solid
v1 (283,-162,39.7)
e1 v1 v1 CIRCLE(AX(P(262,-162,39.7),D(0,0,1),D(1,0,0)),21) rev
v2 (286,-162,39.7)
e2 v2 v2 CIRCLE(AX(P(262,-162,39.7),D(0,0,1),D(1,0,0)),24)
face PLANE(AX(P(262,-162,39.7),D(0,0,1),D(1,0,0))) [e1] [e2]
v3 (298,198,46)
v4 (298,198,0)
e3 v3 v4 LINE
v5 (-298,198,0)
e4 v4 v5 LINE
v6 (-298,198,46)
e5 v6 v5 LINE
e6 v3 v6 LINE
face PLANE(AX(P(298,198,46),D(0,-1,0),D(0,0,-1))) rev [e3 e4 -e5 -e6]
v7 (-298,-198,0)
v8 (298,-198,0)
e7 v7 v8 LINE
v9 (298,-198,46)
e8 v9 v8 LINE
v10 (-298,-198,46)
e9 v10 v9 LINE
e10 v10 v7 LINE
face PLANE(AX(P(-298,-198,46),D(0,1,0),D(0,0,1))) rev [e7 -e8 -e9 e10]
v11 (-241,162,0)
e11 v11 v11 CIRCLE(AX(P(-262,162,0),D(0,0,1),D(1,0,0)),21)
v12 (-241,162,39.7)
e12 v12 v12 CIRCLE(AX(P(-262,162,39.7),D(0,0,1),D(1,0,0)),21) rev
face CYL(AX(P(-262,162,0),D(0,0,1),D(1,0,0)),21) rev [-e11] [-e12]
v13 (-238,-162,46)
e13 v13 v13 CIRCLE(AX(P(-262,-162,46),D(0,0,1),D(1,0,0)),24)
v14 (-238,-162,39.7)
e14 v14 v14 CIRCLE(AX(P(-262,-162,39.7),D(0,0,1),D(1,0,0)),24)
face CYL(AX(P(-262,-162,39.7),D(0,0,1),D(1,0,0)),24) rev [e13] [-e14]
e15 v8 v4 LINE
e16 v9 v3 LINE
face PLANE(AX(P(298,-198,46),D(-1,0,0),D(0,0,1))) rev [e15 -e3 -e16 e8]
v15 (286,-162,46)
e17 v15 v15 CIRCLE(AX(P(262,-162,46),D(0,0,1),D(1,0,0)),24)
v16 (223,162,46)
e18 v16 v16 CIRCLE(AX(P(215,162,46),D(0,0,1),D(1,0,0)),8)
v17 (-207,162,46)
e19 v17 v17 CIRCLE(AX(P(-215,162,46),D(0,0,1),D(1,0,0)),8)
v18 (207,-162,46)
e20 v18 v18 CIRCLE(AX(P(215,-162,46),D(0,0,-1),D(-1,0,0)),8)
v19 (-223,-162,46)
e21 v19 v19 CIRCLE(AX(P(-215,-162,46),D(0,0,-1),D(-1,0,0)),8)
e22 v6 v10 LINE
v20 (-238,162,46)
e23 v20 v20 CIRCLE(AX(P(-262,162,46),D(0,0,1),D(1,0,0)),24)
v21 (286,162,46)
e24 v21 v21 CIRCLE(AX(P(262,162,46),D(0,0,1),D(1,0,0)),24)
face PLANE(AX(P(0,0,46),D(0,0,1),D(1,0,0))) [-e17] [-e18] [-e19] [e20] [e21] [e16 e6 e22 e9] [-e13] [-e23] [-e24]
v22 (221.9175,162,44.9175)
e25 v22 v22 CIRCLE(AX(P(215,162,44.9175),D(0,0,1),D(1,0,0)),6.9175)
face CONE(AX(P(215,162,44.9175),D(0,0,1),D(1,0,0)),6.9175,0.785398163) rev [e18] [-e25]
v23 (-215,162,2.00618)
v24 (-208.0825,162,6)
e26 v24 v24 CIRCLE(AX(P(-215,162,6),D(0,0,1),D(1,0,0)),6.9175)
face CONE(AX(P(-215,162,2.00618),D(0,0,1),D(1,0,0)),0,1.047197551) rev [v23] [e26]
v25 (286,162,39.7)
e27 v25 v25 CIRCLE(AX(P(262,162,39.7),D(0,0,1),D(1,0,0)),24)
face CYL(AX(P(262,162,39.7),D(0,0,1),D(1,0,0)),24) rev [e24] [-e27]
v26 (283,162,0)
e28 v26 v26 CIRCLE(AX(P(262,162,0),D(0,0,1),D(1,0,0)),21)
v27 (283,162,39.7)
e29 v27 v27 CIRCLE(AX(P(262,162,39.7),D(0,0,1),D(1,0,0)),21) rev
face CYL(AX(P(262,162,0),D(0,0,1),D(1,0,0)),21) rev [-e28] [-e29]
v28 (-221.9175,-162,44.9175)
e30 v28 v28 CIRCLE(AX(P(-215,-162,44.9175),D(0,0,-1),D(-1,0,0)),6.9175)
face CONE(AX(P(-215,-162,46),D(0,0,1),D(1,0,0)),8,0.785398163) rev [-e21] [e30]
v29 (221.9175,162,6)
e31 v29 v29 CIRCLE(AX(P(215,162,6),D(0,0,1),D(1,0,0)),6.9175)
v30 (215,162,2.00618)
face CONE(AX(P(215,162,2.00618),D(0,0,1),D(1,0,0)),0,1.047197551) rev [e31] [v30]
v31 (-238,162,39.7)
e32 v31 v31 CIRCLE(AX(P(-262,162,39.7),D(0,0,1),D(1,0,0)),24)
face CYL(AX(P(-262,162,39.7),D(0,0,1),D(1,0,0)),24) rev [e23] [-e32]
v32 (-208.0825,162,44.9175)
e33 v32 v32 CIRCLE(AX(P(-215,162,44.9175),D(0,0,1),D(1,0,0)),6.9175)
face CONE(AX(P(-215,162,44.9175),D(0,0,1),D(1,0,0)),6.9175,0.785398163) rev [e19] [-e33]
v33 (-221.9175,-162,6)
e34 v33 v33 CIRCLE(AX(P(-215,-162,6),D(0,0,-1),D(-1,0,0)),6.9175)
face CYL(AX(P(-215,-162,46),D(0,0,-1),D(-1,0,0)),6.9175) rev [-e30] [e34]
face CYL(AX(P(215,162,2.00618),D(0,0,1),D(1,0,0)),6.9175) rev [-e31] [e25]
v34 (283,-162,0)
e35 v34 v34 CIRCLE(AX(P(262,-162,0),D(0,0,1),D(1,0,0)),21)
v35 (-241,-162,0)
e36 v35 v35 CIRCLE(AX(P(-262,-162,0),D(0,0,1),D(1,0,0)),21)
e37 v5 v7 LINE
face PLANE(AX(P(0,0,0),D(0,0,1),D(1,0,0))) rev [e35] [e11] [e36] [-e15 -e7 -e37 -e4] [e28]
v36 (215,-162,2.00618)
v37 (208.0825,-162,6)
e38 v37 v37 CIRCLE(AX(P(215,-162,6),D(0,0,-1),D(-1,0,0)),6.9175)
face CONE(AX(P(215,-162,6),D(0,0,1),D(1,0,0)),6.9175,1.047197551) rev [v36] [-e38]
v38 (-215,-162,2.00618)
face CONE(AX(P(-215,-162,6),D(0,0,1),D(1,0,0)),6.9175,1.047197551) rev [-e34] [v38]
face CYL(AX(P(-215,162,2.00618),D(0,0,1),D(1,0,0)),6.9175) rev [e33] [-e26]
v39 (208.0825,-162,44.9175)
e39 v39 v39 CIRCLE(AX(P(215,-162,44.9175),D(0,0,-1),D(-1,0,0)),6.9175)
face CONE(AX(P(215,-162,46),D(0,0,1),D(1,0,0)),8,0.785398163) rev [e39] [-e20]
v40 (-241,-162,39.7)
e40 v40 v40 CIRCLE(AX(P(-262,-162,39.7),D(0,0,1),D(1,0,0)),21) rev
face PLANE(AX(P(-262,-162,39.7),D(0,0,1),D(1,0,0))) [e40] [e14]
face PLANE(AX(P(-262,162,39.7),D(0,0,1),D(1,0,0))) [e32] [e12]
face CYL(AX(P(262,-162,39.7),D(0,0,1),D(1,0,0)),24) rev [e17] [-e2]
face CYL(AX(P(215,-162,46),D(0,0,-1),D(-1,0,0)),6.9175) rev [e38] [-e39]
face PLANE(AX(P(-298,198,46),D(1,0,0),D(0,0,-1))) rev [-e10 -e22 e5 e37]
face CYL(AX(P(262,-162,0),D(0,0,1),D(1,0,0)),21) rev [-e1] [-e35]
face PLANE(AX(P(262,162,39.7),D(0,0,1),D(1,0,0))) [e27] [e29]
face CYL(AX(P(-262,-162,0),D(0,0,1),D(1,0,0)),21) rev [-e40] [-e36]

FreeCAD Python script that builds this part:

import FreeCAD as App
import Part
import Sketcher
from FreeCAD import Vector
Q = App.Units.Quantity

doc = App.newDocument("Part")
params = doc.addObject("Spreadsheet::Sheet", "Params")
for row, (alias, value) in enumerate([
    ("sketch1_width", "596 mm"),
    ("sketch1_height", "396 mm"),
    ("pad1_length", "46 mm"),
    ("sketch2_diameter", "42 mm"),
    ("pocket1_length", "46 mm"),
    ("sketch3_diameter", "42 mm"),
    ("pocket2_length", "46 mm"),
    ("sketch4_diameter", "42 mm"),
    ("pocket3_length", "46 mm"),
    ("sketch5_diameter", "42 mm"),
    ("pocket4_length", "46 mm"),
    ("sketch6_diameter", "48 mm"),
    ("pocket5_length", "6.3 mm"),
    ("sketch7_diameter", "48 mm"),
    ("pocket6_length", "6.3 mm"),
    ("sketch8_diameter", "48 mm"),
    ("pocket7_length", "6.3 mm"),
    ("sketch9_diameter", "48 mm"),
    ("pocket8_length", "6.3 mm"),
    ("sketch10_width", "8 mm"),
    ("groove_angle", "360 deg"),
    ("sketch11_width", "8 mm"),
    ("groove2_angle", "360 deg"),
    ("sketch12_width", "8 mm"),
    ("groove3_angle", "360 deg"),
    ("sketch13_width", "8 mm"),
    ("groove4_angle", "360 deg"),
], start=1):
    params.set(f"A{row}", alias)
    params.set(f"B{row}", "=" + value)
    params.setAlias(f"B{row}", alias)

body = doc.addObject("PartDesign::Body", "Body")

# Sketch on XY plane
sketch1 = body.newObject("Sketcher::SketchObject", "Sketch")
sketch1.AttachmentSupport = (doc.getObject("XY_Plane"), [""])
sketch1.MapMode = "FlatFace"
sketch1.addGeometry([
    Part.LineSegment(Vector(-298, 198, 0), Vector(-298, -198, 0)),
    Part.LineSegment(Vector(-298, -198, 0), Vector(298, -198, 0)),
    Part.LineSegment(Vector(298, -198, 0), Vector(298, 198, 0)),
    Part.LineSegment(Vector(298, 198, 0), Vector(-298, 198, 0)),
], False)
sketch1.addConstraint([
    Sketcher.Constraint("Coincident", 0, 2, 1, 1),
    Sketcher.Constraint("Coincident", 1, 2, 2, 1),
    Sketcher.Constraint("Coincident", 2, 2, 3, 1),
    Sketcher.Constraint("Coincident", 3, 2, 0, 1),
    Sketcher.Constraint("Vertical", 0),
    Sketcher.Constraint("Horizontal", 1),
    Sketcher.Constraint("Vertical", 2),
    Sketcher.Constraint("Horizontal", 3),
    Sketcher.Constraint("Symmetric", 0, 2, 2, 2, -1, 1),
    Sketcher.Constraint("DistanceX", 1, 1, 1, 2, Q("596 mm")),
    Sketcher.Constraint("DistanceY", 0, 2, 0, 1, Q("396 mm")),
])
sketch1.setExpression("Constraints[9]", "Params.sketch1_width")
sketch1.setExpression("Constraints[10]", "Params.sketch1_height")
pad1 = body.newObject("PartDesign::Pad", "Pad")
pad1.Profile = sketch1
pad1.setExpression("Length", "Params.pad1_length")

# Sketch on XY plane
sketch2 = body.newObject("Sketcher::SketchObject", "Sketch001")
sketch2.AttachmentSupport = (doc.getObject("XY_Plane"), [""])
sketch2.MapMode = "FlatFace"
sketch2.AttachmentOffset = App.Placement(Vector(0, 0, 46), App.Rotation())
sketch2.addGeometry(Part.Circle(Vector(262, 162, 0), Vector(0, 0, 1), 21), False)
sketch2.addConstraint([
    Sketcher.Constraint("Diameter", 0, Q("42 mm")),
    Sketcher.Constraint("DistanceX", -1, 1, 0, 3, Q("262 mm")),
    Sketcher.Constraint("DistanceY", -1, 1, 0, 3, Q("162 mm")),
])
sketch2.setExpression("Constraints[0]", "Params.sketch2_diameter")
pocket1 = body.newObject("PartDesign::Pocket", "Pocket")
pocket1.Profile = sketch2
pocket1.setExpression("Length", "Params.pocket1_length")

# Sketch on XY plane
sketch3 = body.newObject("Sketcher::SketchObject", "Sketch002")
sketch3.AttachmentSupport = (doc.getObject("XY_Plane"), [""])
sketch3.MapMode = "FlatFace"
sketch3.AttachmentOffset = App.Placement(Vector(0, 0, 46), App.Rotation())
sketch3.addGeometry(Part.Circle(Vector(262, -162, 0), Vector(0, 0, 1), 21), False)
sketch3.addConstraint([
    Sketcher.Constraint("Diameter", 0, Q("42 mm")),
    Sketcher.Constraint("DistanceX", -1, 1, 0, 3, Q("262 mm")),
    Sketcher.Constraint("DistanceY", 0, 3, -1, 1, Q("162 mm")),
])
sketch3.setExpression("Constraints[0]", "Params.sketch3_diameter")
pocket2 = body.newObject("PartDesign::Pocket", "Pocket001")
pocket2.Profile = sketch3
pocket2.setExpression("Length", "Params.pocket2_length")

# Sketch on XY plane
sketch4 = body.newObject("Sketcher::SketchObject", "Sketch003")
sketch4.AttachmentSupport = (doc.getObject("XY_Plane"), [""])
sketch4.MapMode = "FlatFace"
sketch4.AttachmentOffset = App.Placement(Vector(0, 0, 46), App.Rotation())
sketch4.addGeometry(Part.Circle(Vector(-262, -162, 0), Vector(0, 0, 1), 21), False)
sketch4.addConstraint([
    Sketcher.Constraint("Diameter", 0, Q("42 mm")),
    Sketcher.Constraint("DistanceX", 0, 3, -1, 1, Q("262 mm")),
    Sketcher.Constraint("DistanceY", 0, 3, -1, 1, Q("162 mm")),
])
sketch4.setExpression("Constraints[0]", "Params.sketch4_diameter")
pocket3 = body.newObject("PartDesign::Pocket", "Pocket002")
pocket3.Profile = sketch4
pocket3.setExpression("Length", "Params.pocket3_length")

# Sketch on XY plane
sketch5 = body.newObject("Sketcher::SketchObject", "Sketch004")
sketch5.AttachmentSupport = (doc.getObject("XY_Plane"), [""])
sketch5.MapMode = "FlatFace"
sketch5.AttachmentOffset = App.Placement(Vector(0, 0, 46), App.Rotation())
sketch5.addGeometry(Part.Circle(Vector(-262, 162, 0), Vector(0, 0, 1), 21), False)
sketch5.addConstraint([
    Sketcher.Constraint("Diameter", 0, Q("42 mm")),
    Sketcher.Constraint("DistanceX", 0, 3, -1, 1, Q("262 mm")),
    Sketcher.Constraint("DistanceY", -1, 1, 0, 3, Q("162 mm")),
])
sketch5.setExpression("Constraints[0]", "Params.sketch5_diameter")
pocket4 = body.newObject("PartDesign::Pocket", "Pocket003")
pocket4.Profile = sketch5
pocket4.setExpression("Length", "Params.pocket4_length")

# Sketch on XY plane
sketch6 = body.newObject("Sketcher::SketchObject", "Sketch005")
sketch6.AttachmentSupport = (doc.getObject("XY_Plane"), [""])
sketch6.MapMode = "FlatFace"
sketch6.AttachmentOffset = App.Placement(Vector(0, 0, 46), App.Rotation())
sketch6.addGeometry(Part.Circle(Vector(-262, 162, 0), Vector(0, 0, 1), 24), False)
sketch6.addConstraint([
    Sketcher.Constraint("Diameter", 0, Q("48 mm")),
    Sketcher.Constraint("DistanceX", 0, 3, -1, 1, Q("262 mm")),
    Sketcher.Constraint("DistanceY", -1, 1, 0, 3, Q("162 mm")),
])
sketch6.setExpression("Constraints[0]", "Params.sketch6_diameter")
pocket5 = body.newObject("PartDesign::Pocket", "Pocket004")
pocket5.Profile = sketch6
pocket5.setExpression("Length", "Params.pocket5_length")

# Sketch on XY plane
sketch7 = body.newObject("Sketcher::SketchObject", "Sketch006")
sketch7.AttachmentSupport = (doc.getObject("XY_Plane"), [""])
sketch7.MapMode = "FlatFace"
sketch7.AttachmentOffset = App.Placement(Vector(0, 0, 46), App.Rotation())
sketch7.addGeometry(Part.Circle(Vector(262, 162, 0), Vector(0, 0, 1), 24), False)
sketch7.addConstraint([
    Sketcher.Constraint("Diameter", 0, Q("48 mm")),
    Sketcher.Constraint("DistanceX", -1, 1, 0, 3, Q("262 mm")),
    Sketcher.Constraint("DistanceY", -1, 1, 0, 3, Q("162 mm")),
])
sketch7.setExpression("Constraints[0]", "Params.sketch7_diameter")
pocket6 = body.newObject("PartDesign::Pocket", "Pocket005")
pocket6.Profile = sketch7
pocket6.setExpression("Length", "Params.pocket6_length")

# Sketch on XY plane
sketch8 = body.newObject("Sketcher::SketchObject", "Sketch007")
sketch8.AttachmentSupport = (doc.getObject("XY_Plane"), [""])
sketch8.MapMode = "FlatFace"
sketch8.AttachmentOffset = App.Placement(Vector(0, 0, 46), App.Rotation())
sketch8.addGeometry(Part.Circle(Vector(-262, -162, 0), Vector(0, 0, 1), 24), False)
sketch8.addConstraint([
    Sketcher.Constraint("Diameter", 0, Q("48 mm")),
    Sketcher.Constraint("DistanceX", 0, 3, -1, 1, Q("262 mm")),
    Sketcher.Constraint("DistanceY", 0, 3, -1, 1, Q("162 mm")),
])
sketch8.setExpression("Constraints[0]", "Params.sketch8_diameter")
pocket7 = body.newObject("PartDesign::Pocket", "Pocket006")
pocket7.Profile = sketch8
pocket7.setExpression("Length", "Params.pocket7_length")

# Sketch on XY plane
sketch9 = body.newObject("Sketcher::SketchObject", "Sketch008")
sketch9.AttachmentSupport = (doc.getObject("XY_Plane"), [""])
sketch9.MapMode = "FlatFace"
sketch9.AttachmentOffset = App.Placement(Vector(0, 0, 46), App.Rotation())
sketch9.addGeometry(Part.Circle(Vector(262, -162, 0), Vector(0, 0, 1), 24), False)
sketch9.addConstraint([
    Sketcher.Constraint("Diameter", 0, Q("48 mm")),
    Sketcher.Constraint("DistanceX", -1, 1, 0, 3, Q("262 mm")),
    Sketcher.Constraint("DistanceY", 0, 3, -1, 1, Q("162 mm")),
])
sketch9.setExpression("Constraints[0]", "Params.sketch9_diameter")
pocket8 = body.newObject("PartDesign::Pocket", "Pocket007")
pocket8.Profile = sketch9
pocket8.setExpression("Length", "Params.pocket8_length")

# Sketch on YZ plane
sketch10 = body.newObject("Sketcher::SketchObject", "Sketch009")
sketch10.AttachmentSupport = (doc.getObject("YZ_Plane"), [""])
sketch10.MapMode = "FlatFace"
sketch10.AttachmentOffset = App.Placement(Vector(0, 0, -215), App.Rotation())
sketch10.addGeometry([
    Part.LineSegment(Vector(170, 46, 0), Vector(162, 46, 0)),  # 0
    Part.LineSegment(Vector(162, 46, 0), Vector(162, 2, 0)),  # 1
    Part.LineSegment(Vector(162, 2, 0), Vector(168.9, 6, 0)),  # 2
    Part.LineSegment(Vector(168.9, 6, 0), Vector(168.9, 44.9, 0)),  # 3
    Part.LineSegment(Vector(168.9, 44.9, 0), Vector(170, 46, 0)),  # 4
], False)
sketch10.addGeometry(Part.LineSegment(Vector(162, 2, 0), Vector(162, 46, 0)), True)  # axis
sketch10.addConstraint([
    Sketcher.Constraint("Coincident", 0, 2, 1, 1),
    Sketcher.Constraint("Coincident", 1, 2, 2, 1),
    Sketcher.Constraint("Coincident", 2, 2, 3, 1),
    Sketcher.Constraint("Coincident", 3, 2, 4, 1),
    Sketcher.Constraint("Coincident", 4, 2, 0, 1),
    Sketcher.Constraint("Horizontal", 0),
    Sketcher.Constraint("Vertical", 1),
    Sketcher.Constraint("Vertical", 3),
    Sketcher.Constraint("Vertical", 5),
    Sketcher.Constraint("Coincident", 5, 1, 1, 2),
    Sketcher.Constraint("Horizontal", 4, 2, 5, 2),
    Sketcher.Constraint("DistanceX", 0, 2, 0, 1, Q("8 mm")),
    Sketcher.Constraint("Angle", 2, Q("30 deg")),
    Sketcher.Constraint("Angle", 4, Q("45 deg")),
    Sketcher.Constraint("DistanceX", -1, 1, 0, 2, Q("162 mm")),
    Sketcher.Constraint("DistanceY", -1, 1, 0, 2, Q("46 mm")),
    Sketcher.Constraint("DistanceY", -1, 1, 2, 2, Q("6 mm")),
    Sketcher.Constraint("DistanceY", 3, 1, 3, 2, Q("38.9175 mm")),
])
sketch10.setExpression("Constraints[11]", "Params.sketch10_width")
groove = body.newObject("PartDesign::Groove", "Groove")
groove.Profile = sketch10
groove.ReferenceAxis = (sketch10, ["Axis0"])
groove.setExpression("Angle", "Params.groove_angle")

# Sketch on YZ plane
sketch11 = body.newObject("Sketcher::SketchObject", "Sketch010")
sketch11.AttachmentSupport = (doc.getObject("YZ_Plane"), [""])
sketch11.MapMode = "FlatFace"
sketch11.AttachmentOffset = App.Placement(Vector(0, 0, -215), App.Rotation())
sketch11.addGeometry([
    Part.LineSegment(Vector(-168.9, 6, 0), Vector(-162, 2, 0)),  # 0
    Part.LineSegment(Vector(-162, 2, 0), Vector(-162, 46, 0)),  # 1
    Part.LineSegment(Vector(-162, 46, 0), Vector(-170, 46, 0)),  # 2
    Part.LineSegment(Vector(-170, 46, 0), Vector(-168.9, 44.9, 0)),  # 3
    Part.LineSegment(Vector(-168.9, 44.9, 0), Vector(-168.9, 6, 0)),  # 4
], False)
sketch11.addGeometry(Part.LineSegment(Vector(-162, 46, 0), Vector(-162, 2, 0)), True)  # axis
sketch11.addConstraint([
    Sketcher.Constraint("Coincident", 0, 2, 1, 1),
    Sketcher.Constraint("Coincident", 1, 2, 2, 1),
    Sketcher.Constraint("Coincident", 2, 2, 3, 1),
    Sketcher.Constraint("Coincident", 3, 2, 4, 1),
    Sketcher.Constraint("Coincident", 4, 2, 0, 1),
    Sketcher.Constraint("Vertical", 1),
    Sketcher.Constraint("Horizontal", 2),
    Sketcher.Constraint("Vertical", 4),
    Sketcher.Constraint("Vertical", 5),
    Sketcher.Constraint("Coincident", 5, 1, 1, 2),
    Sketcher.Constraint("Equal", 1, 5),
    Sketcher.Constraint("DistanceX", 2, 2, 2, 1, Q("8 mm")),
    Sketcher.Constraint("Angle", 0, Q("-30 deg")),
    Sketcher.Constraint("Angle", 3, Q("-45 deg")),
    Sketcher.Constraint("DistanceX", 0, 2, -1, 1, Q("162 mm")),
    Sketcher.Constraint("DistanceY", -1, 1, 1, 2, Q("46 mm")),
    Sketcher.Constraint("DistanceY", -1, 1, 4, 2, Q("6 mm")),
    Sketcher.Constraint("DistanceY", 4, 2, 4, 1, Q("38.9175 mm")),
])
sketch11.setExpression("Constraints[11]", "Params.sketch11_width")
groove2 = body.newObject("PartDesign::Groove", "Groove001")
groove2.Profile = sketch11
groove2.ReferenceAxis = (sketch11, ["Axis0"])
groove2.setExpression("Angle", "Params.groove2_angle")

# Sketch on YZ plane
sketch12 = body.newObject("Sketcher::SketchObject", "Sketch011")
sketch12.AttachmentSupport = (doc.getObject("YZ_Plane"), [""])
sketch12.MapMode = "FlatFace"
sketch12.AttachmentOffset = App.Placement(Vector(0, 0, 215), App.Rotation())
sketch12.addGeometry([
    Part.LineSegment(Vector(170, 46, 0), Vector(162, 46, 0)),  # 0
    Part.LineSegment(Vector(162, 46, 0), Vector(162, 2, 0)),  # 1
    Part.LineSegment(Vector(162, 2, 0), Vector(168.9, 6, 0)),  # 2
    Part.LineSegment(Vector(168.9, 6, 0), Vector(168.9, 44.9, 0)),  # 3
    Part.LineSegment(Vector(168.9, 44.9, 0), Vector(170, 46, 0)),  # 4
], False)
sketch12.addGeometry(Part.LineSegment(Vector(162, 2, 0), Vector(162, 46, 0)), True)  # axis
sketch12.addConstraint([
    Sketcher.Constraint("Coincident", 0, 2, 1, 1),
    Sketcher.Constraint("Coincident", 1, 2, 2, 1),
    Sketcher.Constraint("Coincident", 2, 2, 3, 1),
    Sketcher.Constraint("Coincident", 3, 2, 4, 1),
    Sketcher.Constraint("Coincident", 4, 2, 0, 1),
    Sketcher.Constraint("Horizontal", 0),
    Sketcher.Constraint("Vertical", 1),
    Sketcher.Constraint("Vertical", 3),
    Sketcher.Constraint("Vertical", 5),
    Sketcher.Constraint("Coincident", 5, 1, 1, 2),
    Sketcher.Constraint("Horizontal", 4, 2, 5, 2),
    Sketcher.Constraint("DistanceX", 0, 2, 0, 1, Q("8 mm")),
    Sketcher.Constraint("Angle", 2, Q("30 deg")),
    Sketcher.Constraint("Angle", 4, Q("45 deg")),
    Sketcher.Constraint("DistanceX", -1, 1, 0, 2, Q("162 mm")),
    Sketcher.Constraint("DistanceY", -1, 1, 0, 2, Q("46 mm")),
    Sketcher.Constraint("DistanceY", -1, 1, 2, 2, Q("6 mm")),
    Sketcher.Constraint("DistanceY", 3, 1, 3, 2, Q("38.9175 mm")),
])
sketch12.setExpression("Constraints[11]", "Params.sketch12_width")
groove3 = body.newObject("PartDesign::Groove", "Groove002")
groove3.Profile = sketch12
groove3.ReferenceAxis = (sketch12, ["Axis0"])
groove3.setExpression("Angle", "Params.groove3_angle")

# Sketch on YZ plane
sketch13 = body.newObject("Sketcher::SketchObject", "Sketch012")
sketch13.AttachmentSupport = (doc.getObject("YZ_Plane"), [""])
sketch13.MapMode = "FlatFace"
sketch13.AttachmentOffset = App.Placement(Vector(0, 0, 215), App.Rotation())
sketch13.addGeometry([
    Part.LineSegment(Vector(-168.9, 6, 0), Vector(-162, 2, 0)),  # 0
    Part.LineSegment(Vector(-162, 2, 0), Vector(-162, 46, 0)),  # 1
    Part.LineSegment(Vector(-162, 46, 0), Vector(-170, 46, 0)),  # 2
    Part.LineSegment(Vector(-170, 46, 0), Vector(-168.9, 44.9, 0)),  # 3
    Part.LineSegment(Vector(-168.9, 44.9, 0), Vector(-168.9, 6, 0)),  # 4
], False)
sketch13.addGeometry(Part.LineSegment(Vector(-162, 46, 0), Vector(-162, 2, 0)), True)  # axis
sketch13.addConstraint([
    Sketcher.Constraint("Coincident", 0, 2, 1, 1),
    Sketcher.Constraint("Coincident", 1, 2, 2, 1),
    Sketcher.Constraint("Coincident", 2, 2, 3, 1),
    Sketcher.Constraint("Coincident", 3, 2, 4, 1),
    Sketcher.Constraint("Coincident", 4, 2, 0, 1),
    Sketcher.Constraint("Vertical", 1),
    Sketcher.Constraint("Horizontal", 2),
    Sketcher.Constraint("Vertical", 4),
    Sketcher.Constraint("Vertical", 5),
    Sketcher.Constraint("Coincident", 5, 1, 1, 2),
    Sketcher.Constraint("Equal", 1, 5),
    Sketcher.Constraint("DistanceX", 2, 2, 2, 1, Q("8 mm")),
    Sketcher.Constraint("Angle", 0, Q("-30 deg")),
    Sketcher.Constraint("Angle", 3, Q("-45 deg")),
    Sketcher.Constraint("DistanceX", 0, 2, -1, 1, Q("162 mm")),
    Sketcher.Constraint("DistanceY", -1, 1, 1, 2, Q("46 mm")),
    Sketcher.Constraint("DistanceY", -1, 1, 4, 2, Q("6 mm")),
    Sketcher.Constraint("DistanceY", 4, 2, 4, 1, Q("38.9175 mm")),
])
sketch13.setExpression("Constraints[11]", "Params.sketch13_width")
groove4 = body.newObject("PartDesign::Groove", "Groove003")
groove4.Profile = sketch13
groove4.ReferenceAxis = (sketch13, ["Axis0"])
groove4.setExpression("Angle", "Params.groove4_angle")

doc.recompute()
